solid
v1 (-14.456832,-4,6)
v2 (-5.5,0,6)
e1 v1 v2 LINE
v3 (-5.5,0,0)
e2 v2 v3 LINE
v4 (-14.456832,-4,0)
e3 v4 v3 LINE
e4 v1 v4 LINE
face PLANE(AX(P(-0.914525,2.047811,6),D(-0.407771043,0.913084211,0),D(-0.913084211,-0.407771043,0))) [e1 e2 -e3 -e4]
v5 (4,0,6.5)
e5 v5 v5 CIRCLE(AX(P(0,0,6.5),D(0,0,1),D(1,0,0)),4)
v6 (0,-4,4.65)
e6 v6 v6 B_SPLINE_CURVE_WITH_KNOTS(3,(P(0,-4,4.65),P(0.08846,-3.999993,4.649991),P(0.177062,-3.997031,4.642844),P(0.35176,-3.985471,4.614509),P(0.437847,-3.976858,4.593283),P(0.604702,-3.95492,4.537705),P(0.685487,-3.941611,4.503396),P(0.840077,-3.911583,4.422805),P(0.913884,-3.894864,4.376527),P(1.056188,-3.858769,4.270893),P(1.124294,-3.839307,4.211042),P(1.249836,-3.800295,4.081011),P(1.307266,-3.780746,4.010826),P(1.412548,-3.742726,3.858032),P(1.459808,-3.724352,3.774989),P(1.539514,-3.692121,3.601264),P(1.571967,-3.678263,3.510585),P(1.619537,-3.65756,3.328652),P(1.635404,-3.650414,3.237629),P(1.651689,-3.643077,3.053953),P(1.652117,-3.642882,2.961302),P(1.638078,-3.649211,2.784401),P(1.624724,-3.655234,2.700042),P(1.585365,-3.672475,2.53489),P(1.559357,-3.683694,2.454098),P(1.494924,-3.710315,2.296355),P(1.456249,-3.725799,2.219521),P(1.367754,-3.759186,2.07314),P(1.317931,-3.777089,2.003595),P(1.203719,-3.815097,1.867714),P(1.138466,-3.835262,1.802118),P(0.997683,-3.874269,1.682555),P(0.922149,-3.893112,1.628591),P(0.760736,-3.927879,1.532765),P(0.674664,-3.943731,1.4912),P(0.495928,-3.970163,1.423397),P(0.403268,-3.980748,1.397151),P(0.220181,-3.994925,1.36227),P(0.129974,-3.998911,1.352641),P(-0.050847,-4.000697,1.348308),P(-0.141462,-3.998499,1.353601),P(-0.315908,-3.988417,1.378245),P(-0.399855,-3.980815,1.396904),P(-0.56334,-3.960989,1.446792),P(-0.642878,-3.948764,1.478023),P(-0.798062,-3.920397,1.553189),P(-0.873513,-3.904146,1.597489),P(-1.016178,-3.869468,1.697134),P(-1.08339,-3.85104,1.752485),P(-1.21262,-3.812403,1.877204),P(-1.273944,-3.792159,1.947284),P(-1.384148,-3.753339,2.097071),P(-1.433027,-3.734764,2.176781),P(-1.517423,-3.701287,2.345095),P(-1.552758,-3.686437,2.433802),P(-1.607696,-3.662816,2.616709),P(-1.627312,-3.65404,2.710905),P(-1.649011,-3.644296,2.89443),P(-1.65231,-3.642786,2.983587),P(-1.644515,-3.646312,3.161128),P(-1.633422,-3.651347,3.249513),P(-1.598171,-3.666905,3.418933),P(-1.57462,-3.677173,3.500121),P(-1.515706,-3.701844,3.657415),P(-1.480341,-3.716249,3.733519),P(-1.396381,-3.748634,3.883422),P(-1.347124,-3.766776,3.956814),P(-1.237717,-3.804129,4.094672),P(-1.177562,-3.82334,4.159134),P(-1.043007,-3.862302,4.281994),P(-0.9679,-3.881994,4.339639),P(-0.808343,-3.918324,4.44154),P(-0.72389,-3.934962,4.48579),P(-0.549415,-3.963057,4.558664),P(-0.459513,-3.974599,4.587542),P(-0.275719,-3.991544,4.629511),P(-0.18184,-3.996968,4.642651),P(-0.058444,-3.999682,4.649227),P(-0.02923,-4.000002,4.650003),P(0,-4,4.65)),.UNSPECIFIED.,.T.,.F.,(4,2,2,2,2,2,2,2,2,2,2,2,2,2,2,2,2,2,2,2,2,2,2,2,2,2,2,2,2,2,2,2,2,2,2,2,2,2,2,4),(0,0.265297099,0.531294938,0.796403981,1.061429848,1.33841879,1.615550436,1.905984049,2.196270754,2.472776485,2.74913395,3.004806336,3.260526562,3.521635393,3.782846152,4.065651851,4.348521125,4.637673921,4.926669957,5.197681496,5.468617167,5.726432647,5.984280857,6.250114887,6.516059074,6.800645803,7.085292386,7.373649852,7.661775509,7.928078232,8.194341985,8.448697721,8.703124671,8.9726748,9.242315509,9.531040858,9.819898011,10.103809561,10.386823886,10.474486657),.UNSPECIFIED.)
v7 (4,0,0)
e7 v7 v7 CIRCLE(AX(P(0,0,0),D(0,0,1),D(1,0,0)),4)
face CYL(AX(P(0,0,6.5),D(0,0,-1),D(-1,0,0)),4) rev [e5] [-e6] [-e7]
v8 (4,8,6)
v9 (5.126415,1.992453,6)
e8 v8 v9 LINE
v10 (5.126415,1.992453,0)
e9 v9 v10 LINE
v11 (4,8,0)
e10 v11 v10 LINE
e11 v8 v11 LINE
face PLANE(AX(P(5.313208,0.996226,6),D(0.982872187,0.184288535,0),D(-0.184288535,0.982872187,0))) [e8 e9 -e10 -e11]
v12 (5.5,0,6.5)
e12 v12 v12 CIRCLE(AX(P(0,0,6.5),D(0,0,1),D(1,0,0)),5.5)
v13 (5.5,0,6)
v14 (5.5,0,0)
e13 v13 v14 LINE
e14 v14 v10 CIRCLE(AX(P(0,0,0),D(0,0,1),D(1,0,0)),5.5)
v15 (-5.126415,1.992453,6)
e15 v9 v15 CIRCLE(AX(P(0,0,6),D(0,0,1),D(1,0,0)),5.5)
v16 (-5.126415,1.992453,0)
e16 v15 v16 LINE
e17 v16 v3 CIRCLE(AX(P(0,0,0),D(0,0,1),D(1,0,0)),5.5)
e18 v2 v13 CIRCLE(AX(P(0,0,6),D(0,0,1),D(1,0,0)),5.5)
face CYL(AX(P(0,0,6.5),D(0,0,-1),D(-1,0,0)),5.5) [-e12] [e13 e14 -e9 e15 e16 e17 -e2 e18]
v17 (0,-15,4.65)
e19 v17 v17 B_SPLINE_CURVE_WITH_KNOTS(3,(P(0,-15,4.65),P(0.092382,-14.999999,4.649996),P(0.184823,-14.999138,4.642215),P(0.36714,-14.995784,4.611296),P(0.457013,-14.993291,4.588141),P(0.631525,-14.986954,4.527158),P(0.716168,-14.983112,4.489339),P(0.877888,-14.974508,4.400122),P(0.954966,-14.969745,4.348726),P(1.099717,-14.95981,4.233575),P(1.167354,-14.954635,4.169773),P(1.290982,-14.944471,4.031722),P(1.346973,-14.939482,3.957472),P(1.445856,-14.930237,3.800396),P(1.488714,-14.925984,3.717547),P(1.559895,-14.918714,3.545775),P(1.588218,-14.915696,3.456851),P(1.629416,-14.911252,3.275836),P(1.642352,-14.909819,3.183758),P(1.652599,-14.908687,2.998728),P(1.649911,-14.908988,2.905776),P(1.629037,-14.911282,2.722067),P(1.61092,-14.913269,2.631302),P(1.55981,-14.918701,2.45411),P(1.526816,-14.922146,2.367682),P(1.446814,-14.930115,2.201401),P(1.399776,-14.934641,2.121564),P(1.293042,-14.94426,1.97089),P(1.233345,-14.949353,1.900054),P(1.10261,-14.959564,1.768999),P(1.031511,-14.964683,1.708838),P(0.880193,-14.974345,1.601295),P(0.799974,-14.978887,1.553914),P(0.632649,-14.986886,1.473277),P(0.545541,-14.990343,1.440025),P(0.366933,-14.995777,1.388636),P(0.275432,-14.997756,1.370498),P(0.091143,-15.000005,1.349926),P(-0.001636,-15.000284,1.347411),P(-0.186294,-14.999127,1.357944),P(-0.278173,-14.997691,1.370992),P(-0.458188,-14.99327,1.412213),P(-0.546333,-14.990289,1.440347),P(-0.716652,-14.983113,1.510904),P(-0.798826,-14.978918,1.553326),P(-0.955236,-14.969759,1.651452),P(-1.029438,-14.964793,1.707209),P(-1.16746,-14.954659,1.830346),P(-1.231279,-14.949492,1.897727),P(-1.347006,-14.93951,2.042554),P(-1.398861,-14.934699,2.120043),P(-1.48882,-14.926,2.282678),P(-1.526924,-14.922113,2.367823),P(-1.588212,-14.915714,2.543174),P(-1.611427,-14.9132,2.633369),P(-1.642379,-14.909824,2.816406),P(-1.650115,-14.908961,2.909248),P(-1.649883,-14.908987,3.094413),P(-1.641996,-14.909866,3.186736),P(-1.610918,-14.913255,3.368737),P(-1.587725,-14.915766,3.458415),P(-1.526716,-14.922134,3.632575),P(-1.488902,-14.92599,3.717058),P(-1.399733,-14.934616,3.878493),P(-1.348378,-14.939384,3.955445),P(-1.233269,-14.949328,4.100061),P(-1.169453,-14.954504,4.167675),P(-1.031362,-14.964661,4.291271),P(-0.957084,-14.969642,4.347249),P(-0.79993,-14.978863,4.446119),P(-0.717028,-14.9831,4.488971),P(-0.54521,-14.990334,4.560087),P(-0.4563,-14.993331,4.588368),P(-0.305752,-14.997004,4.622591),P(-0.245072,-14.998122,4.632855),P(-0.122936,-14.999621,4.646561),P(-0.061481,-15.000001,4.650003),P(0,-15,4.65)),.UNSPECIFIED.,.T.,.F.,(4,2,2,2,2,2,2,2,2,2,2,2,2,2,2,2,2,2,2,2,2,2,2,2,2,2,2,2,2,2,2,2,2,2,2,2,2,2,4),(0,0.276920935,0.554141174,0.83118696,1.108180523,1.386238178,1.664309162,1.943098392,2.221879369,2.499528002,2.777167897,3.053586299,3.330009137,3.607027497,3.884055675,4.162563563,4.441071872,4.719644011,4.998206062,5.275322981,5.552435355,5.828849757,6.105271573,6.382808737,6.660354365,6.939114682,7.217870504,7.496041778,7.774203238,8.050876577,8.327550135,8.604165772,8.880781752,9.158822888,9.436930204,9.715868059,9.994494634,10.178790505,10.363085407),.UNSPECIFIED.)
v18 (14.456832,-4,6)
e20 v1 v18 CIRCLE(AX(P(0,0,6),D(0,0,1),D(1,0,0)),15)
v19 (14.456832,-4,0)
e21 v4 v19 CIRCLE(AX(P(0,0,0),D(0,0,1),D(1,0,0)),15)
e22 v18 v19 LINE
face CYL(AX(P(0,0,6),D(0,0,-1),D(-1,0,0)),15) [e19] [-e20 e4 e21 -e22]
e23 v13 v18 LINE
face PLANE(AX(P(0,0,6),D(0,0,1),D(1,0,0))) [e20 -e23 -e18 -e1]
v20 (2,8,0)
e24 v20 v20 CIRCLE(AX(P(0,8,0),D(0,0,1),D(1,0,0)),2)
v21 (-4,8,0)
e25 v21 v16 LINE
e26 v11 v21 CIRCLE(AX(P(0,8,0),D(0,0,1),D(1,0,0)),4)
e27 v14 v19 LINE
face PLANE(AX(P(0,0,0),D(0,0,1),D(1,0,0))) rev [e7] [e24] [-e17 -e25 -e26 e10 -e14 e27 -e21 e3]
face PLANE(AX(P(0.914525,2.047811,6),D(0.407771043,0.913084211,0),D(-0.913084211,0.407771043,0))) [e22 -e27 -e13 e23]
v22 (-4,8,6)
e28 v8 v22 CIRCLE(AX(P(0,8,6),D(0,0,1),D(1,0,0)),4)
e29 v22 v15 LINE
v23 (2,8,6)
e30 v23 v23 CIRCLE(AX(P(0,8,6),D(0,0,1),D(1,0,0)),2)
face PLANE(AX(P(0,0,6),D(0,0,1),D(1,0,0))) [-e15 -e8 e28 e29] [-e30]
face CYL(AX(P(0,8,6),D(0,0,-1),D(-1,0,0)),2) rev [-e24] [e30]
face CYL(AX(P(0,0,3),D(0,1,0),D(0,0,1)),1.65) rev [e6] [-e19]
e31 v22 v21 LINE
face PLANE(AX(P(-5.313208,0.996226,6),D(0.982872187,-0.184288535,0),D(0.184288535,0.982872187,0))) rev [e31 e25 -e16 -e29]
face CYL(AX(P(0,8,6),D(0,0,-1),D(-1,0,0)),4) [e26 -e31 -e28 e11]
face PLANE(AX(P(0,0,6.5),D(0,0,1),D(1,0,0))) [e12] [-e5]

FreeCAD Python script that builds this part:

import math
import FreeCAD as App
import Part
import Sketcher
from FreeCAD import Vector
Q = App.Units.Quantity


def add_polygon(sketch, points):
    """Adds a closed chain of lines whose ends are joined by coincident constraints."""
    first, n = sketch.GeometryCount, len(points)
    for a, b in zip(points, points[1:] + points[:1]):
        sketch.addGeometry(Part.LineSegment(App.Vector(*a, 0), App.Vector(*b, 0)), False)
    for i in range(n):
        sketch.addConstraint(Sketcher.Constraint("Coincident", first + i, 2, first + (i + 1) % n, 1))

doc = App.newDocument("Part")
body = doc.addObject("PartDesign::Body", "Body")

# Sketch on XY plane
sketch1 = body.newObject("Sketcher::SketchObject", "Sketch")
sketch1.AttachmentSupport = (doc.getObject("XY_Plane"), [""])
sketch1.MapMode = "FlatFace"
sketch1.addGeometry([
    Part.LineSegment(Vector(-4, 8, 0), Vector(-5.126415, 1.992453, 0)),  # 0
    Part.ArcOfCircle(Part.Circle(Vector(0, 0, 0), Vector(0, 0, 1), 5.5), math.radians(21.239311), math.radians(158.760689)),  # 1
    Part.LineSegment(Vector(5.126415, 1.992453, 0), Vector(4, 8, 0)),  # 2
    Part.ArcOfCircle(Part.Circle(Vector(0, 8, 0), Vector(0, 0, 1), 4), math.radians(0), math.radians(180)),  # 3
    Part.Circle(Vector(0, 8, 0), Vector(0, 0, 1), 2),  # 4
], False)
sketch1.addConstraint([
    Sketcher.Constraint("Coincident", 0, 2, 1, 2),
    Sketcher.Constraint("Coincident", 1, 1, 2, 1),
    Sketcher.Constraint("Coincident", 2, 2, 3, 1),
    Sketcher.Constraint("Coincident", 3, 2, 0, 1),
    Sketcher.Constraint("Coincident", 1, 3, -1, 1),
    Sketcher.Constraint("Coincident", 4, 3, 3, 3),
    Sketcher.Constraint("Symmetric", 2, 2, 3, 2, -2),
    Sketcher.Constraint("Horizontal", 0, 2, 1, 1),
    Sketcher.Constraint("Horizontal", 4, 3, 2, 2),
    Sketcher.Constraint("Diameter", 4, Q("4 mm")),
    Sketcher.Constraint("Radius", 3, Q("4 mm")),
    Sketcher.Constraint("Radius", 1, Q("5.5 mm")),
    Sketcher.Constraint("DistanceY", -1, 1, 3, 3, Q("8 mm")),
    Sketcher.Constraint("DistanceX", 0, 2, 1, 1, Q("10.25283 mm")),
])
pad1 = body.newObject("PartDesign::Pad", "Pad")
pad1.Profile = sketch1
pad1.Length = 6
body2 = doc.addObject("PartDesign::Body", "Body001")

# Sketch on XY plane
sketch2 = body2.newObject("Sketcher::SketchObject", "Sketch001")
sketch2.AttachmentSupport = (doc.getObject("XY_Plane001"), [""])
sketch2.MapMode = "FlatFace"
sketch2.addGeometry([
    Part.LineSegment(Vector(-5.5, 0, 0), Vector(-14.456832, -4, 0)),
    Part.ArcOfCircle(Part.Circle(Vector(0, 0, 0), Vector(0, 0, 1), 15), math.radians(-164.53399), math.radians(-15.46601)),
    Part.LineSegment(Vector(14.456832, -4, 0), Vector(5.5, 0, 0)),
    Part.ArcOfCircle(Part.Circle(Vector(0, 0, 0), Vector(0, 0, 1), 5.5), math.radians(180), math.radians(360)),
], False)
sketch2.addConstraint([
    Sketcher.Constraint("Coincident", 0, 2, 1, 1),
    Sketcher.Constraint("Coincident", 1, 2, 2, 1),
    Sketcher.Constraint("Coincident", 2, 2, 3, 2),
    Sketcher.Constraint("Coincident", 3, 1, 0, 1),
    Sketcher.Constraint("Coincident", 1, 3, -1, 1),
    Sketcher.Constraint("Coincident", 3, 3, -1, 1),
    Sketcher.Constraint("PointOnObject", 2, 2, -1),
    Sketcher.Constraint("PointOnObject", 3, 1, -1),
    Sketcher.Constraint("Horizontal", 0, 2, 1, 2),
    Sketcher.Constraint("Radius", 1, Q("15 mm")),
    Sketcher.Constraint("Radius", 3, Q("5.5 mm")),
    Sketcher.Constraint("DistanceY", 0, 2, -1, 1, Q("4 mm")),
])
pad2 = body2.newObject("PartDesign::Pad", "Pad001")
pad2.Profile = sketch2
pad2.Length = 6
body.AllowCompound = True
doc.recompute()

boolean = body.newObject("PartDesign::Boolean", "Boolean")
boolean.Type = "Fuse"
boolean.addObjects([body2])

# Sketch on XY plane
sketch3 = body.newObject("Sketcher::SketchObject", "Sketch002")
sketch3.AttachmentSupport = (doc.getObject("XY_Plane"), [""])
sketch3.MapMode = "FlatFace"
sketch3.addGeometry([
    Part.Circle(Vector(0, 0, 0), Vector(0, 0, 1), 5.5),
    Part.Circle(Vector(0, 0, 0), Vector(0, 0, 1), 4),
], False)
sketch3.addConstraint([
    Sketcher.Constraint("Coincident", 0, 3, -1, 1),
    Sketcher.Constraint("Coincident", 1, 3, -1, 1),
    Sketcher.Constraint("Diameter", 0, Q("11 mm")),
    Sketcher.Constraint("Diameter", 1, Q("8 mm")),
])
pad3 = body.newObject("PartDesign::Pad", "Pad002")
pad3.Profile = sketch3
pad3.Length = 6.5

# Sketch on YZ plane
sketch4 = body.newObject("Sketcher::SketchObject", "Sketch003")
sketch4.AttachmentSupport = (doc.getObject("YZ_Plane"), [""])
sketch4.MapMode = "FlatFace"
add_polygon(sketch4, [(-21.09142, 3), (0, 3), (0, 4.65), (-20.1, 4.65)])  # lines 0-3
sketch4.addGeometry(Part.LineSegment(Vector(0, 3, 0), Vector(-21.09142, 3, 0)), True)  # axis
sketch4.addConstraint([
    Sketcher.Constraint("Horizontal", 0),
    Sketcher.Constraint("Vertical", 1),
    Sketcher.Constraint("Horizontal", 2),
    Sketcher.Constraint("Horizontal", 4),
    Sketcher.Constraint("Coincident", 4, 1, 0, 2),
    Sketcher.Constraint("PointOnObject", 0, 2, -2),
    Sketcher.Constraint("Equal", 0, 4),
    Sketcher.Constraint("Angle", 3, Q("-121 deg")),
    Sketcher.Constraint("DistanceX", 2, 2, 2, 1, Q("20.1 mm")),
    Sketcher.Constraint("DistanceY", -1, 1, 0, 2, Q("3 mm")),
    Sketcher.Constraint("DistanceY", 1, 1, 1, 2, Q("1.65 mm")),
])
groove = body.newObject("PartDesign::Groove", "Groove")
groove.Profile = sketch4
groove.ReferenceAxis = (sketch4, ["Axis0"])
groove.Angle = 360

doc.recompute()
